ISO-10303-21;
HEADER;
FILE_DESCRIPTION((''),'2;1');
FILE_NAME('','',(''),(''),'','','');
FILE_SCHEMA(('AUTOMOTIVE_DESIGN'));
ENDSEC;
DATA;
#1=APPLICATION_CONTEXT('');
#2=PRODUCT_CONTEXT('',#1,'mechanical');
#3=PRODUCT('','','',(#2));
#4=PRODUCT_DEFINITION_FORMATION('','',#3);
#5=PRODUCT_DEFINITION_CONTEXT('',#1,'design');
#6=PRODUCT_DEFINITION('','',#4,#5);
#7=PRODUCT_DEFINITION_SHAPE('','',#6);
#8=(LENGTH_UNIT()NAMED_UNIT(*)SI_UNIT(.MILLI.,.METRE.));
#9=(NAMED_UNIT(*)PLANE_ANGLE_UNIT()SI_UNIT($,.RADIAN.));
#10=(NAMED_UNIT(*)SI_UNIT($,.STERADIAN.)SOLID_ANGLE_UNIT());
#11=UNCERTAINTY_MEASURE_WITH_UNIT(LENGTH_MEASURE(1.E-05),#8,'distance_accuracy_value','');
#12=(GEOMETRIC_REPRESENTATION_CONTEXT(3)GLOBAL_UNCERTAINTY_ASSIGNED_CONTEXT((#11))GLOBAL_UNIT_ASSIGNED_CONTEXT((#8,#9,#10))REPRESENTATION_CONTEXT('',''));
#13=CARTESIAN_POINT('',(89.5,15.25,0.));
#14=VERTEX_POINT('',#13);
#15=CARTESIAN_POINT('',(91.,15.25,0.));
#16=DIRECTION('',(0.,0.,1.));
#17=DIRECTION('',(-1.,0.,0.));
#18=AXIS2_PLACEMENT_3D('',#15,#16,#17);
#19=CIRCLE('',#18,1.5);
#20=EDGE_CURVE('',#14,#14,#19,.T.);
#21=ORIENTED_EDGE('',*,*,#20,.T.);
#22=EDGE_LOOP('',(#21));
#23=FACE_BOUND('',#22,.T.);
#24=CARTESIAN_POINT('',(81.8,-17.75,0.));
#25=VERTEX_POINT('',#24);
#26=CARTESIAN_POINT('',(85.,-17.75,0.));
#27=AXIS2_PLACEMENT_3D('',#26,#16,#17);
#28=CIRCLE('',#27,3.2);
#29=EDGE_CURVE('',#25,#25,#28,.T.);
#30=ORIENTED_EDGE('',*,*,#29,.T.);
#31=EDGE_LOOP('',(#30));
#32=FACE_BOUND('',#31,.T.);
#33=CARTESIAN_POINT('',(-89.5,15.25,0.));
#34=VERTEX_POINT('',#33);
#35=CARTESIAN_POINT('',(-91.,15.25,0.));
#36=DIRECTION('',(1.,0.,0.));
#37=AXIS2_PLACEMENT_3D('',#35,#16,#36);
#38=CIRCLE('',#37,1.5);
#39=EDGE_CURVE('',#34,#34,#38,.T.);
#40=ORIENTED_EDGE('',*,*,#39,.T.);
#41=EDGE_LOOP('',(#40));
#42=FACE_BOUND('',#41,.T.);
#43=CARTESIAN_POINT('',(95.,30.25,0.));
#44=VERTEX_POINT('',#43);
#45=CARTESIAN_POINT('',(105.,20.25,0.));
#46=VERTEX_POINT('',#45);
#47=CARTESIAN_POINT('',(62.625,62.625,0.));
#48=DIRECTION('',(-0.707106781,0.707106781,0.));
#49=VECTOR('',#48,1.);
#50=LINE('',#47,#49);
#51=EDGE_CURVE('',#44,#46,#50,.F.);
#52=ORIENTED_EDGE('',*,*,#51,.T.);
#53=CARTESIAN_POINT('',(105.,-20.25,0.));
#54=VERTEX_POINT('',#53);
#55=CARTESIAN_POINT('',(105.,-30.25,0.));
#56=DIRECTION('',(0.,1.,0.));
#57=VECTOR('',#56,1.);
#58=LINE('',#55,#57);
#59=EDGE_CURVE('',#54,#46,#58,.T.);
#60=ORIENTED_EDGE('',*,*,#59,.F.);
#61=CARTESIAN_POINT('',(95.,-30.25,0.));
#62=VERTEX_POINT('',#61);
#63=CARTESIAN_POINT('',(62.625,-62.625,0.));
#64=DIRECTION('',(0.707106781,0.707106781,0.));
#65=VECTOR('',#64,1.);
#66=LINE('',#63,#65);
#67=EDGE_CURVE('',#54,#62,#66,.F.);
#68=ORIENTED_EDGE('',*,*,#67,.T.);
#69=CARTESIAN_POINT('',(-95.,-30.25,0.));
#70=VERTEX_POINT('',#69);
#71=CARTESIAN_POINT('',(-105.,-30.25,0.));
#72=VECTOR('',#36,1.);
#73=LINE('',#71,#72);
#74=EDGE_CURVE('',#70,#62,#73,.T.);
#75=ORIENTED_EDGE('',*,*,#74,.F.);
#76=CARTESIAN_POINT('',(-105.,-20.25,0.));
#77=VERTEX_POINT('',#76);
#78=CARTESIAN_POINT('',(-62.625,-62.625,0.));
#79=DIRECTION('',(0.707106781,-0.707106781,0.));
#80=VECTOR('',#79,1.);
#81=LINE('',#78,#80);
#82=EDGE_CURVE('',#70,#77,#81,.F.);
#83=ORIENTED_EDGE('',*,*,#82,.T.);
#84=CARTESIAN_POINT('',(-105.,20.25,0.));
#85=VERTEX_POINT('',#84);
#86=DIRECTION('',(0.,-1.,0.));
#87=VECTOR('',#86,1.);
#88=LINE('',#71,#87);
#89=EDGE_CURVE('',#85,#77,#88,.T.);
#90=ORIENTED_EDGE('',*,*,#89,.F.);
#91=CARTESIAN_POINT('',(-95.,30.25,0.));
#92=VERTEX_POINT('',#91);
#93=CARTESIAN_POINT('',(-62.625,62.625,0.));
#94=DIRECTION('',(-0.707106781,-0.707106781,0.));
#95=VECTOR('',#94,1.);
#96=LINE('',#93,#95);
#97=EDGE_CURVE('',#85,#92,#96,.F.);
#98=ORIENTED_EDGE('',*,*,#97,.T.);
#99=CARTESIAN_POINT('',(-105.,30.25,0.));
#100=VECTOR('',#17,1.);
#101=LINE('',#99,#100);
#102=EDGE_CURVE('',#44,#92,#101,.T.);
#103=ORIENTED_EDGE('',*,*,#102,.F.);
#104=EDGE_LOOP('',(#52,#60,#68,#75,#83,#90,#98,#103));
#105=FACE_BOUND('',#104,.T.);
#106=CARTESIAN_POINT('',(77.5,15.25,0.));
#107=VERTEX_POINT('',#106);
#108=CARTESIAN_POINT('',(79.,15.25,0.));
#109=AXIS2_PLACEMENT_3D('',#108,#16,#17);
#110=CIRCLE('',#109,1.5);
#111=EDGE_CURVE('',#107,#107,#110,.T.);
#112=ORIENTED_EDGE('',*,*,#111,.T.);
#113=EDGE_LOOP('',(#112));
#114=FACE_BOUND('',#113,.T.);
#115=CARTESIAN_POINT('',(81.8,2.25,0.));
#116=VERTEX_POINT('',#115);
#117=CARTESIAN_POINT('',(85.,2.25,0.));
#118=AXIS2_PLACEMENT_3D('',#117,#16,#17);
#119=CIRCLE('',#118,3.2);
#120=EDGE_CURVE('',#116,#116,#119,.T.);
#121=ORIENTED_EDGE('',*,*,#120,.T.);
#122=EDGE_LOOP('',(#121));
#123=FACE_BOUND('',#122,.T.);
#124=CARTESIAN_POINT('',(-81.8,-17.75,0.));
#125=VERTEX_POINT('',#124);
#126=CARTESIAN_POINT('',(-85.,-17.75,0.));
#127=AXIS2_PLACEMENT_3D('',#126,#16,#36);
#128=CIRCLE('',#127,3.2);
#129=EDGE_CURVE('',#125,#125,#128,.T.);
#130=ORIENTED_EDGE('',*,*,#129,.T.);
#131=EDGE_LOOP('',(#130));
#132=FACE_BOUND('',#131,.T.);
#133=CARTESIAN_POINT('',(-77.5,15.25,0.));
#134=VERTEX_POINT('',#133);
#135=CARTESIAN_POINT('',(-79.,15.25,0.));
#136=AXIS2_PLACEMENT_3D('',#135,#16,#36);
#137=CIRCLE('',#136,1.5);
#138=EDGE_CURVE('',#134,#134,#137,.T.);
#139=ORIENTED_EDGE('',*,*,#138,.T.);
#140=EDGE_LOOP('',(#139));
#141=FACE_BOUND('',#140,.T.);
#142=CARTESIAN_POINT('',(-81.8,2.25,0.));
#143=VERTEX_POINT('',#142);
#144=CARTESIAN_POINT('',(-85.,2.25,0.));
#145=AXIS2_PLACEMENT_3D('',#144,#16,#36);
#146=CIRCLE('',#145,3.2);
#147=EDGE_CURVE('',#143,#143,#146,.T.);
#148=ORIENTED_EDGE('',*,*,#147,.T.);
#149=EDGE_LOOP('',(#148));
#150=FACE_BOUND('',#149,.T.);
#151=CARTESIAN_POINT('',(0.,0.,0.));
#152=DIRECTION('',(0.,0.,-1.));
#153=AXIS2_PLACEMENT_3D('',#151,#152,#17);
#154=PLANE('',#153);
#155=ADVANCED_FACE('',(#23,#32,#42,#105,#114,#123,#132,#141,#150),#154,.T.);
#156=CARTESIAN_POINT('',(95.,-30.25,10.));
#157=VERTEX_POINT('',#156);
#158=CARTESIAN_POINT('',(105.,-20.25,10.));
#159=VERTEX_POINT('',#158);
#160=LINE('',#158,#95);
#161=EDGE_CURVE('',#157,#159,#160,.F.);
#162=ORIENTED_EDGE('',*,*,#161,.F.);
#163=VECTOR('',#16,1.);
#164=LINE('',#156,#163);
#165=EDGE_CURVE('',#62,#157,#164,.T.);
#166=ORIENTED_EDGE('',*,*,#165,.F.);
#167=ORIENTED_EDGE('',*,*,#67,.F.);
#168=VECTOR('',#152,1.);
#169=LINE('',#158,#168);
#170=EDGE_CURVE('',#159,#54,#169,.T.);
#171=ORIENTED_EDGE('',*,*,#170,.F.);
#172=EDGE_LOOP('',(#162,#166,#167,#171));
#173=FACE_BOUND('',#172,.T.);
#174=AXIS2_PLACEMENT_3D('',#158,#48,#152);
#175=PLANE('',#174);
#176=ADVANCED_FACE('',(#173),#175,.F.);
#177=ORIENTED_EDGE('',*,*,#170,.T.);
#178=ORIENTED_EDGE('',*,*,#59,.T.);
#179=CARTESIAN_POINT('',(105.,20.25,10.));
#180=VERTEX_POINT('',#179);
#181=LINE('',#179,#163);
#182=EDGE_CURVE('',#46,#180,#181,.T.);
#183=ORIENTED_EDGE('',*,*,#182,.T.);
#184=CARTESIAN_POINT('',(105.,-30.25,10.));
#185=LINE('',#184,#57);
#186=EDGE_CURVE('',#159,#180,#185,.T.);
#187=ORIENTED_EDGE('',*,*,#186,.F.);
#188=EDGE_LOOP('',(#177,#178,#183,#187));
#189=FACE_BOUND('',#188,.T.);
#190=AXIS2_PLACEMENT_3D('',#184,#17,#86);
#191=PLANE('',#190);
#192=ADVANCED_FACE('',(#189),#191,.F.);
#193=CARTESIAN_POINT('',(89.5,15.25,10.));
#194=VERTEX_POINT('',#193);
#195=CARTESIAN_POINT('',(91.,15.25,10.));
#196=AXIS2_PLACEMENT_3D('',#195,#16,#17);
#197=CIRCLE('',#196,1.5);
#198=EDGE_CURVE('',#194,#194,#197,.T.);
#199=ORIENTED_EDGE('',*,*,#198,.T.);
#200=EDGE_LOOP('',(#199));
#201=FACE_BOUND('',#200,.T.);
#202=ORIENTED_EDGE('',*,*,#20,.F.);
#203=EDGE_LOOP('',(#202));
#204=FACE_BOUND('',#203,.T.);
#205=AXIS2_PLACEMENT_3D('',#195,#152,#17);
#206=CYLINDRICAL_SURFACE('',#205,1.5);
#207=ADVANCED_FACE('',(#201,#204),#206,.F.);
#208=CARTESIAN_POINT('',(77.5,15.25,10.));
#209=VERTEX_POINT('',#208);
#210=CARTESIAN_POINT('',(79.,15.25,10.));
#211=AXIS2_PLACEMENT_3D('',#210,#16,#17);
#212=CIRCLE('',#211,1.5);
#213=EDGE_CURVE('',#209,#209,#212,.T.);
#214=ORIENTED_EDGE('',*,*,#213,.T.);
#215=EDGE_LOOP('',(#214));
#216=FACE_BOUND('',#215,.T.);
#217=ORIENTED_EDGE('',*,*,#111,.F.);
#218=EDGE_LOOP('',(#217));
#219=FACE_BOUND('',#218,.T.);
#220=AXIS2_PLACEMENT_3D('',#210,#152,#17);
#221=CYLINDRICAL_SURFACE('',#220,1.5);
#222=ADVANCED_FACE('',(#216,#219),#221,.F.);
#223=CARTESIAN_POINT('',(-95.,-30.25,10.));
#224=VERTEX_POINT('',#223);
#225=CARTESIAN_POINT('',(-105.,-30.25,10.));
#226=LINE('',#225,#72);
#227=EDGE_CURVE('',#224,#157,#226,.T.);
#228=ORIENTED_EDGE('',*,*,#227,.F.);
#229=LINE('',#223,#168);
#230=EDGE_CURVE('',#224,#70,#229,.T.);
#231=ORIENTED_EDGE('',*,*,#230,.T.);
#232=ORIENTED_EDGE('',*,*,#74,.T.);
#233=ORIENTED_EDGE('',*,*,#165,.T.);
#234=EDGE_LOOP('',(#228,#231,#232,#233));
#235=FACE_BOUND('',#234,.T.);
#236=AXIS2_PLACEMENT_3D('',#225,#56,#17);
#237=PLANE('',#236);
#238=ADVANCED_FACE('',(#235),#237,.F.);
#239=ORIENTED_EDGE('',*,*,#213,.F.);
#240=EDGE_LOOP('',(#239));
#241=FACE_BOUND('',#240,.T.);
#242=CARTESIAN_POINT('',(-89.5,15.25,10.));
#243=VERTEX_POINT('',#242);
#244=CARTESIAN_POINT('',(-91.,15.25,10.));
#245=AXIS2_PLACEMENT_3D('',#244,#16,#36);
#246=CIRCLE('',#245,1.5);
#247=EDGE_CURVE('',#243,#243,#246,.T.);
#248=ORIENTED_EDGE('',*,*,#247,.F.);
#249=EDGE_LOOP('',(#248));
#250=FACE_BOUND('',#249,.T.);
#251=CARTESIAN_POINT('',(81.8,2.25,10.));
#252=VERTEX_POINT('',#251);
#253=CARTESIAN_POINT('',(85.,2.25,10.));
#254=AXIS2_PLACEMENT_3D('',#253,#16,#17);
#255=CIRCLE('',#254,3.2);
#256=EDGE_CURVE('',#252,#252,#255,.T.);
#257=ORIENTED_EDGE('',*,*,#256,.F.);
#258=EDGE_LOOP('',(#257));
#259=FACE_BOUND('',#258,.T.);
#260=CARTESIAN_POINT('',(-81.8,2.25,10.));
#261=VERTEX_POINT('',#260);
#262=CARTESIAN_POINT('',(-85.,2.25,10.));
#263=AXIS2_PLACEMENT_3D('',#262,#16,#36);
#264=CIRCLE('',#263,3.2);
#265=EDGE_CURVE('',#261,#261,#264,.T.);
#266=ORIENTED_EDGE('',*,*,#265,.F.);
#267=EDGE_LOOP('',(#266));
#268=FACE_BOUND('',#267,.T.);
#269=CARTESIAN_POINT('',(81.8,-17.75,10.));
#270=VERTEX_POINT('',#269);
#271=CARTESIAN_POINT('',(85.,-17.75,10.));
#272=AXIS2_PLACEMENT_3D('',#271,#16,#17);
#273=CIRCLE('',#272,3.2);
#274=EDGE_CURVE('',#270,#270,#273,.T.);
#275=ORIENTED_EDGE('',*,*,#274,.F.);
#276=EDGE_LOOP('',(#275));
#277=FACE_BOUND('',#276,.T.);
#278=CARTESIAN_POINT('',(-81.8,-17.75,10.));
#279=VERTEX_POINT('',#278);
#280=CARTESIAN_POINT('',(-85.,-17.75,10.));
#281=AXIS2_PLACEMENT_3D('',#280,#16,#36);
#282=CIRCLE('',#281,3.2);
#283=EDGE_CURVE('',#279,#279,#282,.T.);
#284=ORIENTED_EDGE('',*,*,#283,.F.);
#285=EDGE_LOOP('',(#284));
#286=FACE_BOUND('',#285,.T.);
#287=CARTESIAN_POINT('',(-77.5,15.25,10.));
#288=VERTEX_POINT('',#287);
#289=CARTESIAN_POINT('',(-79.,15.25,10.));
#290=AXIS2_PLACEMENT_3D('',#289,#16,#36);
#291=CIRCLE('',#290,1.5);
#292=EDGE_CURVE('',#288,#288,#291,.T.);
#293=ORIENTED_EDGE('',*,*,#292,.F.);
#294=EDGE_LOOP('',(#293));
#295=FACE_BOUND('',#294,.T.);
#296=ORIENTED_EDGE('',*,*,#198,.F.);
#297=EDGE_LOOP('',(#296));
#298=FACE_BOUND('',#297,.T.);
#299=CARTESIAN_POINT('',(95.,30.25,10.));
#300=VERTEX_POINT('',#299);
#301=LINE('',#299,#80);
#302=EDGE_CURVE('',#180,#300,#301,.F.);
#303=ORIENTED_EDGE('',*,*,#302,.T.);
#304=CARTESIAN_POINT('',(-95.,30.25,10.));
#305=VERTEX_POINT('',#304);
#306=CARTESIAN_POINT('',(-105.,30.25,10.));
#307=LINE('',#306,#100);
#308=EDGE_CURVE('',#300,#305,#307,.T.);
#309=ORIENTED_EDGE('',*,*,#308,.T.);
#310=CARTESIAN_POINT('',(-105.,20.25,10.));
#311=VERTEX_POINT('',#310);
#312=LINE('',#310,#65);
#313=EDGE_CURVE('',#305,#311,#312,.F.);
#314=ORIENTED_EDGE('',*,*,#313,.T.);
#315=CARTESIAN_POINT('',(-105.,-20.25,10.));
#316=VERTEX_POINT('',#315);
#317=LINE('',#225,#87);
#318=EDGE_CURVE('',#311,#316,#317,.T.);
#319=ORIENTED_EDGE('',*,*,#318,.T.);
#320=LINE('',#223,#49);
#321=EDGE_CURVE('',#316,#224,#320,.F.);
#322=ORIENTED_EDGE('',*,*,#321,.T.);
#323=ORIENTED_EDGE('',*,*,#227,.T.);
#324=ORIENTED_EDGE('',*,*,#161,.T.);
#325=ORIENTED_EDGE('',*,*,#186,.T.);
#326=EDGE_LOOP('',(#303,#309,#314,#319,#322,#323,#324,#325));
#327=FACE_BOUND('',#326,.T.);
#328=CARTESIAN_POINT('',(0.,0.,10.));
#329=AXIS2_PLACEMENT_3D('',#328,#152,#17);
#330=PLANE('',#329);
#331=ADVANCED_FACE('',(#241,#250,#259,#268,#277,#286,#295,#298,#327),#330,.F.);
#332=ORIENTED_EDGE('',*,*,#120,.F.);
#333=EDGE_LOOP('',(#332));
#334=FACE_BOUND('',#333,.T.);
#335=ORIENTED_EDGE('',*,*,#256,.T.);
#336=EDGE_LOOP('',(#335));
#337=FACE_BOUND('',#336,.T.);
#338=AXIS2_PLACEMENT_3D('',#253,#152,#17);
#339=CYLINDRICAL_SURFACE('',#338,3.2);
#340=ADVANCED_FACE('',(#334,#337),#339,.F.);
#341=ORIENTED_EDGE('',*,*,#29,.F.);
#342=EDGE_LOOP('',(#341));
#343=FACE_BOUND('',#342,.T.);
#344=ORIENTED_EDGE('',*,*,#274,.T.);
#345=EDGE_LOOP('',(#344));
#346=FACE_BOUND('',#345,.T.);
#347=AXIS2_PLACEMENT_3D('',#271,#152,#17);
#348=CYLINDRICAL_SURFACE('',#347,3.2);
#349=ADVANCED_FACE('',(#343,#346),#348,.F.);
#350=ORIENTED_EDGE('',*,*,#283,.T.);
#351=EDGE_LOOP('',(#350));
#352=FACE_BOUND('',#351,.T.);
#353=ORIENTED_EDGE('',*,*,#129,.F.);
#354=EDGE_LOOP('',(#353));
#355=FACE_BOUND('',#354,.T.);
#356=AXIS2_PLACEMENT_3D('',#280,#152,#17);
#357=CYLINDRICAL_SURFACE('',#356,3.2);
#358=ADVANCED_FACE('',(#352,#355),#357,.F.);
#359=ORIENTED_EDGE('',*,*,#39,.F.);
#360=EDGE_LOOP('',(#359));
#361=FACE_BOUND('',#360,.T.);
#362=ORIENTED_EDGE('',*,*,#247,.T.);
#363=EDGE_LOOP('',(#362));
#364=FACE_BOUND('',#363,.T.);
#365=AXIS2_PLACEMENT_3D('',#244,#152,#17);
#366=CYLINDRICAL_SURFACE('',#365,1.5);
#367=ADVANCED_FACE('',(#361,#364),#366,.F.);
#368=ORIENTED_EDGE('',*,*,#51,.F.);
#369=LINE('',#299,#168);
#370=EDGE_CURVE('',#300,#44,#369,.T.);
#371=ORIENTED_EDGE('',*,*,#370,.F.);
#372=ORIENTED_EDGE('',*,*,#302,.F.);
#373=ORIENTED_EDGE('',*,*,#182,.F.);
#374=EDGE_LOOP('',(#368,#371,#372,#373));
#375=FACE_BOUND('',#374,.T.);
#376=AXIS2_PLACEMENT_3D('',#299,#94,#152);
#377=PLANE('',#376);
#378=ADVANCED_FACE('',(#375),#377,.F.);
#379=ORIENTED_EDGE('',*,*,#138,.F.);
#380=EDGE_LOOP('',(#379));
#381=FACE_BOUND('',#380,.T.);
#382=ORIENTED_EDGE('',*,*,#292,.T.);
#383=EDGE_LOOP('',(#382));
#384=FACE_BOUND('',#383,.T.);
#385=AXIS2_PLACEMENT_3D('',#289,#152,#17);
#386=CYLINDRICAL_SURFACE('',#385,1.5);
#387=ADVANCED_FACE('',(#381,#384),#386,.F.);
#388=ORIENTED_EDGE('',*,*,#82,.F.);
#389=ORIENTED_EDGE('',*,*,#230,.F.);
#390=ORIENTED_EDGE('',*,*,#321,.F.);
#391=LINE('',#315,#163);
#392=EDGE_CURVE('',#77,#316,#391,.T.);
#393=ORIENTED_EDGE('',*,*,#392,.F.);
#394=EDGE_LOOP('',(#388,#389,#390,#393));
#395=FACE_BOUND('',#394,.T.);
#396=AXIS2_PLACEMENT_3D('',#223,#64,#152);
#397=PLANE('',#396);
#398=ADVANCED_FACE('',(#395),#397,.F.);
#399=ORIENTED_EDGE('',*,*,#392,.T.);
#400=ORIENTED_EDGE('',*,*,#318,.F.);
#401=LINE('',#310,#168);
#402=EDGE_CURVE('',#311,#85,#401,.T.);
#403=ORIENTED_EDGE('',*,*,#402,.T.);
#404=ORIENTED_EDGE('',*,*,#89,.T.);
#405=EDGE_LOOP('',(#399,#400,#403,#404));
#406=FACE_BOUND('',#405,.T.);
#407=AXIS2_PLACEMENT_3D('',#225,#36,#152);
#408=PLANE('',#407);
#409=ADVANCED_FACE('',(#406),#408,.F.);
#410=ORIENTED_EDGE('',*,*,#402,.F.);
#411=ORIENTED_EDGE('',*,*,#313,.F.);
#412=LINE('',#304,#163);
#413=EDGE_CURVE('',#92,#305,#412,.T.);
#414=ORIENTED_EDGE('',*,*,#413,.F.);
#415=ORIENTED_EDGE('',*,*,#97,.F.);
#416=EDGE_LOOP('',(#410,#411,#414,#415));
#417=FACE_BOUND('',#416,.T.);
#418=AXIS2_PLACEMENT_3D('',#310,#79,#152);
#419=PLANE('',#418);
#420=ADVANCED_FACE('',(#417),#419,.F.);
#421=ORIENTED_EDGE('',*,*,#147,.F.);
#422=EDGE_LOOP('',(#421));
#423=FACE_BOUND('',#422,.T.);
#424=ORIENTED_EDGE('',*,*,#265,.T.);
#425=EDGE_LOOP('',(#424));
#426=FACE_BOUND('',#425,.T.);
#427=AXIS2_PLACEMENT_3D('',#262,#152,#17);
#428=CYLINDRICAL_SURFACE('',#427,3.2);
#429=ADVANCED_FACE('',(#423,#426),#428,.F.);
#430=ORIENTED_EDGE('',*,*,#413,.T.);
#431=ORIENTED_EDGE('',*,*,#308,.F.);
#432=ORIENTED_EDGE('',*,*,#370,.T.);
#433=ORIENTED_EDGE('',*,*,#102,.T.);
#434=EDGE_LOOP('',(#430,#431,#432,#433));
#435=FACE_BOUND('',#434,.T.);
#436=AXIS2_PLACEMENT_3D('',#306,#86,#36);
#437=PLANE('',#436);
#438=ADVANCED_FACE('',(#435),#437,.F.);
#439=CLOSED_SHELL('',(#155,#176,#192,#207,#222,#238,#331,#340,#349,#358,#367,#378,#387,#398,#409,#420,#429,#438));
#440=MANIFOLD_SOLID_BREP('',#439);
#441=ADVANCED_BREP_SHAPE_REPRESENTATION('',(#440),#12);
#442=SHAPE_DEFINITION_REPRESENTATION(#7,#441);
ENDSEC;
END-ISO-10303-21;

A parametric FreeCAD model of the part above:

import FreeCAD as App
import Part
import Sketcher

V = App.Vector


def edges_at(feature, points):
    """Names of the edges that pass closest to the given points."""
    edges = feature.Shape.Edges
    near = lambda p: min(range(len(edges)), key=lambda i: edges[i].distToShape(Part.Vertex(*p))[0])
    return sorted({f"Edge{near(p) + 1}" for p in points})

doc = App.newDocument("Part")
body = doc.addObject("PartDesign::Body", "Body")

# Sketch on XY plane
sketch1 = body.newObject("Sketcher::SketchObject", "Sketch")
sketch1.AttachmentSupport = (doc.getObject("XY_Plane"), [""])
sketch1.MapMode = "FlatFace"
sketch1.addGeometry([
    Part.LineSegment(V(-105, 30.2, 0), V(-105, -30.2, 0)),  # 0
    Part.LineSegment(V(-105, -30.2, 0), V(105, -30.2, 0)),  # 1
    Part.LineSegment(V(105, -30.2, 0), V(105, 30.2, 0)),  # 2
    Part.LineSegment(V(105, 30.2, 0), V(-105, 30.2, 0)),  # 3
    Part.Circle(V(-85, -17.8, 0), V(0, 0, 1), 3.2),  # 4
    Part.Circle(V(85, -17.8, 0), V(0, 0, 1), 3.2),  # 5
    Part.Circle(V(-85, 2.2, 0), V(0, 0, 1), 3.2),  # 6
    Part.Circle(V(-91, 15.2, 0), V(0, 0, 1), 1.5),  # 7
    Part.Circle(V(-79, 15.2, 0), V(0, 0, 1), 1.5),  # 8
    Part.Circle(V(85, 2.2, 0), V(0, 0, 1), 3.2),  # 9
    Part.Circle(V(79, 15.2, 0), V(0, 0, 1), 1.5),  # 10
    Part.Circle(V(91, 15.2, 0), V(0, 0, 1), 1.5),  # 11
], False)
sketch1.addConstraint([
    Sketcher.Constraint("Coincident", 0, 2, 1, 1),
    Sketcher.Constraint("Coincident", 1, 2, 2, 1),
    Sketcher.Constraint("Coincident", 2, 2, 3, 1),
    Sketcher.Constraint("Coincident", 3, 2, 0, 1),
    Sketcher.Constraint("Vertical", 0),
    Sketcher.Constraint("Horizontal", 1),
    Sketcher.Constraint("Vertical", 2),
    Sketcher.Constraint("Horizontal", 3),
    Sketcher.Constraint("Equal", 4, 5),
    Sketcher.Constraint("Equal", 5, 6),
    Sketcher.Constraint("Equal", 7, 8),
    Sketcher.Constraint("Equal", 6, 9),
    Sketcher.Constraint("Equal", 8, 10),
    Sketcher.Constraint("Equal", 10, 11),
    Sketcher.Constraint("Symmetric", 0, 2, 2, 2, -1, 1),
    Sketcher.Constraint("Symmetric", 4, 3, 5, 3, -2),
    Sketcher.Constraint("Symmetric", 6, 3, 9, 3, -2),
    Sketcher.Constraint("Symmetric", 8, 3, 10, 3, -2),
    Sketcher.Constraint("Symmetric", 7, 3, 11, 3, -2),
    Sketcher.Constraint("Horizontal", 7, 3, 8, 3),
    Sketcher.Constraint("Vertical", 4, 3, 6, 3),
    Sketcher.Constraint("Diameter", 7, 3.0),
    Sketcher.Constraint("Diameter", 4, 6.4),
    Sketcher.Constraint("DistanceX", 1, 1, 1, 2, 210.0),
    Sketcher.Constraint("DistanceY", 0, 2, 0, 1, 60.5),
    Sketcher.Constraint("DistanceX", 4, 3, -1, 1, 85.0),
    Sketcher.Constraint("DistanceX", 7, 3, -1, 1, 91.0),
    Sketcher.Constraint("DistanceX", 8, 3, -1, 1, 79.0),
    Sketcher.Constraint("DistanceY", 4, 3, 6, 3, 20.0),
    Sketcher.Constraint("DistanceY", 6, 3, 7, 3, 13.0),
    Sketcher.Constraint("DistanceY", 11, 3, 2, 2, 15.0),
])
pad1 = body.newObject("PartDesign::Pad", "Pad")
pad1.Profile = sketch1
pad1.Length = 10
doc.recompute()

chamfer = body.newObject("PartDesign::Chamfer", "Chamfer")
chamfer.Base = (pad1, edges_at(pad1, [(-105, 30.25, 5), (105, 30.25, 5)]))
chamfer.Size = 10
doc.recompute()

chamfer2 = body.newObject("PartDesign::Chamfer", "Chamfer001")
chamfer2.Base = (chamfer, edges_at(chamfer, [(105, -30.25, 5), (-105, -30.25, 5)]))
chamfer2.Size = 10

doc.recompute()
